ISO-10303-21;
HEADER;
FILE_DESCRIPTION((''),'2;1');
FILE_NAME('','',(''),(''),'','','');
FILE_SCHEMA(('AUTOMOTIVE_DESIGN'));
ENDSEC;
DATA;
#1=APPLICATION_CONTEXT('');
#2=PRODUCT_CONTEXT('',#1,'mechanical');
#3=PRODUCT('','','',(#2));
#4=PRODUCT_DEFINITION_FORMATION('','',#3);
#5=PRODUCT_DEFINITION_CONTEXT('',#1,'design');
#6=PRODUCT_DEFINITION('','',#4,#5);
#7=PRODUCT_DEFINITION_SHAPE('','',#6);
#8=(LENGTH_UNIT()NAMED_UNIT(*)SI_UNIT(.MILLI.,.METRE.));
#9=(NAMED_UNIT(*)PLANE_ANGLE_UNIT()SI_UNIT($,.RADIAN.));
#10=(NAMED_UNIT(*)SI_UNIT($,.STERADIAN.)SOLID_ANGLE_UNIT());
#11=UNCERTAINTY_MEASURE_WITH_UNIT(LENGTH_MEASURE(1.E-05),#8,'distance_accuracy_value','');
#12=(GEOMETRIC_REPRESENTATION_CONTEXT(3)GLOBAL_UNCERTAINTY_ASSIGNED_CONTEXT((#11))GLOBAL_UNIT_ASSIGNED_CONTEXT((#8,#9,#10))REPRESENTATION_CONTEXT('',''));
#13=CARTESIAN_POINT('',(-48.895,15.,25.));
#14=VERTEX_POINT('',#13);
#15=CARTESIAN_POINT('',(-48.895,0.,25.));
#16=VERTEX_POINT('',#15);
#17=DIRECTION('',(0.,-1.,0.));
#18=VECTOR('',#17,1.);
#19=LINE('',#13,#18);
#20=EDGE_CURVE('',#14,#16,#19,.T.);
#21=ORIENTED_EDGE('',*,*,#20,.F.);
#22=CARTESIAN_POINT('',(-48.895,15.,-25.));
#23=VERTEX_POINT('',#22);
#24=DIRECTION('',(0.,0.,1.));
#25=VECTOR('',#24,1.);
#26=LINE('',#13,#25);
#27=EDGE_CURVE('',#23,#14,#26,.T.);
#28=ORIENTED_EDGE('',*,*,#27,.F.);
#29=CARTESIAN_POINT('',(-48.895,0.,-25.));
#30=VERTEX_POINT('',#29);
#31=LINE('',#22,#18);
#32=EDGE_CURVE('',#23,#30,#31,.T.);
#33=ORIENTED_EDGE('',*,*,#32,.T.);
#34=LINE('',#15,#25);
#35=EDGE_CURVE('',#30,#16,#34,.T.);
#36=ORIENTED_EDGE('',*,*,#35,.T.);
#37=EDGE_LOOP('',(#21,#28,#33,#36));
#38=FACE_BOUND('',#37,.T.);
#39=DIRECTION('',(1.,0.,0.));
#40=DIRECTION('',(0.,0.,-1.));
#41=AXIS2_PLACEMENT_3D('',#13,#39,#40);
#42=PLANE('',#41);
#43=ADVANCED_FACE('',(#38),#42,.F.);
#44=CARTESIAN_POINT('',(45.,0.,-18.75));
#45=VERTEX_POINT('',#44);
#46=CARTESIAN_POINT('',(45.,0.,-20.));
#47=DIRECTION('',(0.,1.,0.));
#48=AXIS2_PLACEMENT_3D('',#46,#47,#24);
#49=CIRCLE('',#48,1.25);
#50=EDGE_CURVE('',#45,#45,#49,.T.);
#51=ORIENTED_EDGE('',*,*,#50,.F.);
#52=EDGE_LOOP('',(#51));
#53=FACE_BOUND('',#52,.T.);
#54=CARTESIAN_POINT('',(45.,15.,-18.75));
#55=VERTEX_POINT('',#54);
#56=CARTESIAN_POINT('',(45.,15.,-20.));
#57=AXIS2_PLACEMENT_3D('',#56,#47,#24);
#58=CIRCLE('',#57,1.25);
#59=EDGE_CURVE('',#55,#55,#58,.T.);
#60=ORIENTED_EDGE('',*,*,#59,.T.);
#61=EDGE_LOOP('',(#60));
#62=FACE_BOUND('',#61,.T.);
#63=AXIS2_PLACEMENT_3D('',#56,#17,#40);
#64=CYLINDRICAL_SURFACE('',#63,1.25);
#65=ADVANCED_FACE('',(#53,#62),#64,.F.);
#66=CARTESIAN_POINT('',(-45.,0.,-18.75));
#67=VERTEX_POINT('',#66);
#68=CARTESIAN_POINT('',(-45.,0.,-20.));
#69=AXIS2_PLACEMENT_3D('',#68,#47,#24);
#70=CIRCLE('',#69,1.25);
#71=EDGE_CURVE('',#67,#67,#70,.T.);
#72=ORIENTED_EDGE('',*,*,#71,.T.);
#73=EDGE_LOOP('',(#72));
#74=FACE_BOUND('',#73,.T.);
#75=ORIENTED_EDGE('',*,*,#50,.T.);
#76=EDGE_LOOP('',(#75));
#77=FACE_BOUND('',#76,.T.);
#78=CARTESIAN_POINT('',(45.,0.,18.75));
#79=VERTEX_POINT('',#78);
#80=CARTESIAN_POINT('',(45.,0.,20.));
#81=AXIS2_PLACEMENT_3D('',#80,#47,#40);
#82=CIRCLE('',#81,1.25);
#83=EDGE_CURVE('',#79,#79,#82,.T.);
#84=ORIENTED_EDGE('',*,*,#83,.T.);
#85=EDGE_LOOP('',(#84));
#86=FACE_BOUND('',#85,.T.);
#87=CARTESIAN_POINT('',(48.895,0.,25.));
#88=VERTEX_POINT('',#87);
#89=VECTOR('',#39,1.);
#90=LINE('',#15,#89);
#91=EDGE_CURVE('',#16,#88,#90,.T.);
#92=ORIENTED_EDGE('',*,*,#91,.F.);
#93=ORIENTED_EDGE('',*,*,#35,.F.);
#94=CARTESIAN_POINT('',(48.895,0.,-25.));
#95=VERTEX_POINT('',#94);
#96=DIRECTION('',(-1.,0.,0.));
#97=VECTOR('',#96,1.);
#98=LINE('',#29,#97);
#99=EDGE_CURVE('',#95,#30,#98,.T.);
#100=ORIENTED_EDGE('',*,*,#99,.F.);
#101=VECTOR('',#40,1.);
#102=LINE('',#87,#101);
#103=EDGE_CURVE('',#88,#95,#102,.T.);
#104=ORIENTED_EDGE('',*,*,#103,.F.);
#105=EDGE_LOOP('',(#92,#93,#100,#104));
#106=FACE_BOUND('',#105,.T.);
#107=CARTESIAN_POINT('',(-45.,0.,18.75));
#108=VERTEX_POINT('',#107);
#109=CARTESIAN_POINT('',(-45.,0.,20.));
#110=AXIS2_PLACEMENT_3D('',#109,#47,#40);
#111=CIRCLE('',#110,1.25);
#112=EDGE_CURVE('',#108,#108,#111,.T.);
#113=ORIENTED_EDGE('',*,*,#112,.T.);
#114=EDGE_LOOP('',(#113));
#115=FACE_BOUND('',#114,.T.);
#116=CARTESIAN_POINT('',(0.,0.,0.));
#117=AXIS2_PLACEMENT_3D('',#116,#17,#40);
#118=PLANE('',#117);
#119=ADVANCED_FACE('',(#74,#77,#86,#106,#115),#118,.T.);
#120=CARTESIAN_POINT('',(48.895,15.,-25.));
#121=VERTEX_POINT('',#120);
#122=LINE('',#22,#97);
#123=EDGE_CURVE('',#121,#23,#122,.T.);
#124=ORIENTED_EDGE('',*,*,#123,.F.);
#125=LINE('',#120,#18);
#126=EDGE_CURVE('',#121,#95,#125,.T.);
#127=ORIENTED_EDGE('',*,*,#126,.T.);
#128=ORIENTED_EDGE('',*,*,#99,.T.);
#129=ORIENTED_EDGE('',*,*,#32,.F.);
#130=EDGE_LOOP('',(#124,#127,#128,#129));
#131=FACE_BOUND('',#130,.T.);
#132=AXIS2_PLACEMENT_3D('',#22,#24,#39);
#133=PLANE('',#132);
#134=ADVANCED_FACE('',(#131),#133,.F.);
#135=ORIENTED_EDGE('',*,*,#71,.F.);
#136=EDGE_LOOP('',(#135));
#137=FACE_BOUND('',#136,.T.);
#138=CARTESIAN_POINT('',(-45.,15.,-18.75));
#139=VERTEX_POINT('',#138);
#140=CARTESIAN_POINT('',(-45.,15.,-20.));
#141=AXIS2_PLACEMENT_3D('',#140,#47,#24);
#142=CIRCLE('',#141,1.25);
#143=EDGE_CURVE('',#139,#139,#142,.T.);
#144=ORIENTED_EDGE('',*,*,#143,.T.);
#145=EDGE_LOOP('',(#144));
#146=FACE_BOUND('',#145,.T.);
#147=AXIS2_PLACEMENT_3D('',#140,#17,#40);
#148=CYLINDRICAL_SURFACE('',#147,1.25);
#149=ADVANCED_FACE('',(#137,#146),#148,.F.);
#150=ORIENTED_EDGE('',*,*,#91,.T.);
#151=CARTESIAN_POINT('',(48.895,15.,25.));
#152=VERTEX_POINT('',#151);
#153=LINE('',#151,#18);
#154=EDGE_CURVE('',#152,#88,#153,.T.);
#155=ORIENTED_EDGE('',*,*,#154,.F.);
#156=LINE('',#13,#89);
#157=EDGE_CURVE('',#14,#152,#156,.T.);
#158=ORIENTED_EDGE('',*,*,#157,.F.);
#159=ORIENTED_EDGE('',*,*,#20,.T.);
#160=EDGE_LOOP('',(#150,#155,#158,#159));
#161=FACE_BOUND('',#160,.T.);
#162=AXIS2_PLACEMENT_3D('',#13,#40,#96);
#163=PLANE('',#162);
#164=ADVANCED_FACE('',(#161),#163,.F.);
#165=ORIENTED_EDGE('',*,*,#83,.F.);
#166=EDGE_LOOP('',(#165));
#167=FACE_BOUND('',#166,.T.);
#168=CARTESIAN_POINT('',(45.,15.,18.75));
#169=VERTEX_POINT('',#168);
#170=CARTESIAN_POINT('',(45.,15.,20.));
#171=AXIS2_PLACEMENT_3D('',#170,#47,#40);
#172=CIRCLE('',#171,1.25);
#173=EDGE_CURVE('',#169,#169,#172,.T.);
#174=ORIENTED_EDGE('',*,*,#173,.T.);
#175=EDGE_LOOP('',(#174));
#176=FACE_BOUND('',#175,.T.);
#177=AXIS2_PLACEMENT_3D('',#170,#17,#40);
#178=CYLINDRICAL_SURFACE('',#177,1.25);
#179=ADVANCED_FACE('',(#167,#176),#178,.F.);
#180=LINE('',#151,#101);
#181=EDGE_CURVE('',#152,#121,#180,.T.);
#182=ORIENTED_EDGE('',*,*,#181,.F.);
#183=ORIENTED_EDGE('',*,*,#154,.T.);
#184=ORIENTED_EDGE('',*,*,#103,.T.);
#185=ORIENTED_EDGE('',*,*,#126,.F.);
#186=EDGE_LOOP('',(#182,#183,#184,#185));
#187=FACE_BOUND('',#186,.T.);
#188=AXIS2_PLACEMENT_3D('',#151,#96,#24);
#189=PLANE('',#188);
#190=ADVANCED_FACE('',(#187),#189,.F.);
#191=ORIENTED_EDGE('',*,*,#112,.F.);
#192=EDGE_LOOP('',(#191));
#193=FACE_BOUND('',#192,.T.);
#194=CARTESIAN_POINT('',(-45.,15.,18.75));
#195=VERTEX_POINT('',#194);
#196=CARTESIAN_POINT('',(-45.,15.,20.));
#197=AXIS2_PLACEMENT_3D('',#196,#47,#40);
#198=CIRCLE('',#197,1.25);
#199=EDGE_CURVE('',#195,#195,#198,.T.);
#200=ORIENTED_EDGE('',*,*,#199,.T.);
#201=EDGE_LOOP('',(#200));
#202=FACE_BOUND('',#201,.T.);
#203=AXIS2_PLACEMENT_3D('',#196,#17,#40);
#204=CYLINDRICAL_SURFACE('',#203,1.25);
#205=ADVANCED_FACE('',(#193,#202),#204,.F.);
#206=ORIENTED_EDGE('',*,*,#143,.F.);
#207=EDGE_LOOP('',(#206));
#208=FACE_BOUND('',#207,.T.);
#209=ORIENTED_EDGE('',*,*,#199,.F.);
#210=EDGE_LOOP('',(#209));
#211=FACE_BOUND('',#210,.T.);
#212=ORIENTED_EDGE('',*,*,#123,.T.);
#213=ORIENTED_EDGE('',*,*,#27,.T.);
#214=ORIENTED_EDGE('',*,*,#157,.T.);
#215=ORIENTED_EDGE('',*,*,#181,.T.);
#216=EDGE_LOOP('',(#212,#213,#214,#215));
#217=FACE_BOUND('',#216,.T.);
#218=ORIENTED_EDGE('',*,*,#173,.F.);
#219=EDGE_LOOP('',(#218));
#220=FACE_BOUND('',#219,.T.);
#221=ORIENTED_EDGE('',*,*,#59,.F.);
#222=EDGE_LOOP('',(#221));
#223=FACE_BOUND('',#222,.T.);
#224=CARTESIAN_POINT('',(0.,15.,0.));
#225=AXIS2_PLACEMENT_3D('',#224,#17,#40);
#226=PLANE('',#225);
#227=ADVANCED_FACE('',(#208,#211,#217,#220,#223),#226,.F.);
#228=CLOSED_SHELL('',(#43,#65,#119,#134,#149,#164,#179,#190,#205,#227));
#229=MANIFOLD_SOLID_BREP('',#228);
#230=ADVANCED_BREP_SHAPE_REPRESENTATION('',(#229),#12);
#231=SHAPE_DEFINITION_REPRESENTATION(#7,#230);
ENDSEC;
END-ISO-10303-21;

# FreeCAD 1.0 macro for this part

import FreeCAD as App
import Part
import Sketcher

V = App.Vector
Q = App.Units.Quantity


def add_polygon(sketch, points):
    """Adds a closed chain of lines whose ends are joined by coincident constraints."""
    first, n = sketch.GeometryCount, len(points)
    for a, b in zip(points, points[1:] + points[:1]):
        sketch.addGeometry(Part.LineSegment(App.Vector(*a, 0), App.Vector(*b, 0)), False)
    for i in range(n):
        sketch.addConstraint(Sketcher.Constraint("Coincident", first + i, 2, first + (i + 1) % n, 1))

doc = App.newDocument("Part")
params = doc.addObject("Spreadsheet::Sheet", "Params")
for row, (alias, value) in enumerate([
    ("sketch1_diameter", "2.5 mm"),
    ("sketch1_height", "50 mm"),
    ("sketch1_width", "97.79 mm"),
    ("pad1_length", "15 mm"),
], start=1):
    params.set(f"A{row}", alias)
    params.set(f"B{row}", "=" + value)
    params.setAlias(f"B{row}", alias)

body = doc.addObject("PartDesign::Body", "Body")

sketch1 = body.newObject("Sketcher::SketchObject", "Sketch")
sketch1.AttachmentSupport = (doc.getObject("XZ_Plane"), [""])
sketch1.MapMode = "FlatFace"
add_polygon(sketch1, [(-48.895, -25), (-48.895, 25), (48.895, 25), (48.895, -25)])
sketch1.addGeometry(Part.Circle(V(-45, 20, 0), V(0, 0, 1), 1.25), False)
sketch1.addGeometry(Part.Circle(V(45, 20, 0), V(0, 0, 1), 1.25), False)
sketch1.addGeometry(Part.Circle(V(-45, -20, 0), V(0, 0, 1), 1.25), False)
sketch1.addGeometry(Part.Circle(V(45, -20, 0), V(0, 0, 1), 1.25), False)
sketch1.addConstraint(Sketcher.Constraint("Vertical", 0))
sketch1.addConstraint(Sketcher.Constraint("Horizontal", 1))
sketch1.addConstraint(Sketcher.Constraint("Vertical", 2))
sketch1.addConstraint(Sketcher.Constraint("Horizontal", 3))
sketch1.addConstraint(Sketcher.Constraint("Equal", 4, 5))
sketch1.addConstraint(Sketcher.Constraint("Equal", 5, 6))
sketch1.addConstraint(Sketcher.Constraint("Equal", 6, 7))
sketch1.addConstraint(Sketcher.Constraint("Symmetric", 5, 3, 6, 3, -1, 1))
sketch1.addConstraint(Sketcher.Constraint("Symmetric", 4, 3, 7, 3, -1, 1))
sketch1.addConstraint(Sketcher.Constraint("Symmetric", 0, 2, 2, 2, -1, 1))
sketch1.addConstraint(Sketcher.Constraint("Symmetric", 4, 3, 5, 3, -2))
sketch1.addConstraint(Sketcher.Constraint("Diameter", 4, Q("2.5 mm")))
sketch1.addConstraint(Sketcher.Constraint("DistanceY", 0, 1, 0, 2, Q("50 mm")))
sketch1.addConstraint(Sketcher.Constraint("DistanceX", 4, 3, -1, 1, Q("45 mm")))
sketch1.addConstraint(Sketcher.Constraint("DistanceY", -1, 1, 4, 3, Q("20 mm")))
sketch1.addConstraint(Sketcher.Constraint("DistanceX", 1, 1, 1, 2, Q("97.79 mm")))
sketch1.setExpression("Constraints[15]", "Params.sketch1_diameter")
sketch1.setExpression("Constraints[16]", "Params.sketch1_height")
sketch1.setExpression("Constraints[19]", "Params.sketch1_width")
pad1 = body.newObject("PartDesign::Pad", "Pad")
pad1.Profile = sketch1
pad1.setExpression("Length", "Params.pad1_length")
pad1.Reversed = True

doc.recompute()
